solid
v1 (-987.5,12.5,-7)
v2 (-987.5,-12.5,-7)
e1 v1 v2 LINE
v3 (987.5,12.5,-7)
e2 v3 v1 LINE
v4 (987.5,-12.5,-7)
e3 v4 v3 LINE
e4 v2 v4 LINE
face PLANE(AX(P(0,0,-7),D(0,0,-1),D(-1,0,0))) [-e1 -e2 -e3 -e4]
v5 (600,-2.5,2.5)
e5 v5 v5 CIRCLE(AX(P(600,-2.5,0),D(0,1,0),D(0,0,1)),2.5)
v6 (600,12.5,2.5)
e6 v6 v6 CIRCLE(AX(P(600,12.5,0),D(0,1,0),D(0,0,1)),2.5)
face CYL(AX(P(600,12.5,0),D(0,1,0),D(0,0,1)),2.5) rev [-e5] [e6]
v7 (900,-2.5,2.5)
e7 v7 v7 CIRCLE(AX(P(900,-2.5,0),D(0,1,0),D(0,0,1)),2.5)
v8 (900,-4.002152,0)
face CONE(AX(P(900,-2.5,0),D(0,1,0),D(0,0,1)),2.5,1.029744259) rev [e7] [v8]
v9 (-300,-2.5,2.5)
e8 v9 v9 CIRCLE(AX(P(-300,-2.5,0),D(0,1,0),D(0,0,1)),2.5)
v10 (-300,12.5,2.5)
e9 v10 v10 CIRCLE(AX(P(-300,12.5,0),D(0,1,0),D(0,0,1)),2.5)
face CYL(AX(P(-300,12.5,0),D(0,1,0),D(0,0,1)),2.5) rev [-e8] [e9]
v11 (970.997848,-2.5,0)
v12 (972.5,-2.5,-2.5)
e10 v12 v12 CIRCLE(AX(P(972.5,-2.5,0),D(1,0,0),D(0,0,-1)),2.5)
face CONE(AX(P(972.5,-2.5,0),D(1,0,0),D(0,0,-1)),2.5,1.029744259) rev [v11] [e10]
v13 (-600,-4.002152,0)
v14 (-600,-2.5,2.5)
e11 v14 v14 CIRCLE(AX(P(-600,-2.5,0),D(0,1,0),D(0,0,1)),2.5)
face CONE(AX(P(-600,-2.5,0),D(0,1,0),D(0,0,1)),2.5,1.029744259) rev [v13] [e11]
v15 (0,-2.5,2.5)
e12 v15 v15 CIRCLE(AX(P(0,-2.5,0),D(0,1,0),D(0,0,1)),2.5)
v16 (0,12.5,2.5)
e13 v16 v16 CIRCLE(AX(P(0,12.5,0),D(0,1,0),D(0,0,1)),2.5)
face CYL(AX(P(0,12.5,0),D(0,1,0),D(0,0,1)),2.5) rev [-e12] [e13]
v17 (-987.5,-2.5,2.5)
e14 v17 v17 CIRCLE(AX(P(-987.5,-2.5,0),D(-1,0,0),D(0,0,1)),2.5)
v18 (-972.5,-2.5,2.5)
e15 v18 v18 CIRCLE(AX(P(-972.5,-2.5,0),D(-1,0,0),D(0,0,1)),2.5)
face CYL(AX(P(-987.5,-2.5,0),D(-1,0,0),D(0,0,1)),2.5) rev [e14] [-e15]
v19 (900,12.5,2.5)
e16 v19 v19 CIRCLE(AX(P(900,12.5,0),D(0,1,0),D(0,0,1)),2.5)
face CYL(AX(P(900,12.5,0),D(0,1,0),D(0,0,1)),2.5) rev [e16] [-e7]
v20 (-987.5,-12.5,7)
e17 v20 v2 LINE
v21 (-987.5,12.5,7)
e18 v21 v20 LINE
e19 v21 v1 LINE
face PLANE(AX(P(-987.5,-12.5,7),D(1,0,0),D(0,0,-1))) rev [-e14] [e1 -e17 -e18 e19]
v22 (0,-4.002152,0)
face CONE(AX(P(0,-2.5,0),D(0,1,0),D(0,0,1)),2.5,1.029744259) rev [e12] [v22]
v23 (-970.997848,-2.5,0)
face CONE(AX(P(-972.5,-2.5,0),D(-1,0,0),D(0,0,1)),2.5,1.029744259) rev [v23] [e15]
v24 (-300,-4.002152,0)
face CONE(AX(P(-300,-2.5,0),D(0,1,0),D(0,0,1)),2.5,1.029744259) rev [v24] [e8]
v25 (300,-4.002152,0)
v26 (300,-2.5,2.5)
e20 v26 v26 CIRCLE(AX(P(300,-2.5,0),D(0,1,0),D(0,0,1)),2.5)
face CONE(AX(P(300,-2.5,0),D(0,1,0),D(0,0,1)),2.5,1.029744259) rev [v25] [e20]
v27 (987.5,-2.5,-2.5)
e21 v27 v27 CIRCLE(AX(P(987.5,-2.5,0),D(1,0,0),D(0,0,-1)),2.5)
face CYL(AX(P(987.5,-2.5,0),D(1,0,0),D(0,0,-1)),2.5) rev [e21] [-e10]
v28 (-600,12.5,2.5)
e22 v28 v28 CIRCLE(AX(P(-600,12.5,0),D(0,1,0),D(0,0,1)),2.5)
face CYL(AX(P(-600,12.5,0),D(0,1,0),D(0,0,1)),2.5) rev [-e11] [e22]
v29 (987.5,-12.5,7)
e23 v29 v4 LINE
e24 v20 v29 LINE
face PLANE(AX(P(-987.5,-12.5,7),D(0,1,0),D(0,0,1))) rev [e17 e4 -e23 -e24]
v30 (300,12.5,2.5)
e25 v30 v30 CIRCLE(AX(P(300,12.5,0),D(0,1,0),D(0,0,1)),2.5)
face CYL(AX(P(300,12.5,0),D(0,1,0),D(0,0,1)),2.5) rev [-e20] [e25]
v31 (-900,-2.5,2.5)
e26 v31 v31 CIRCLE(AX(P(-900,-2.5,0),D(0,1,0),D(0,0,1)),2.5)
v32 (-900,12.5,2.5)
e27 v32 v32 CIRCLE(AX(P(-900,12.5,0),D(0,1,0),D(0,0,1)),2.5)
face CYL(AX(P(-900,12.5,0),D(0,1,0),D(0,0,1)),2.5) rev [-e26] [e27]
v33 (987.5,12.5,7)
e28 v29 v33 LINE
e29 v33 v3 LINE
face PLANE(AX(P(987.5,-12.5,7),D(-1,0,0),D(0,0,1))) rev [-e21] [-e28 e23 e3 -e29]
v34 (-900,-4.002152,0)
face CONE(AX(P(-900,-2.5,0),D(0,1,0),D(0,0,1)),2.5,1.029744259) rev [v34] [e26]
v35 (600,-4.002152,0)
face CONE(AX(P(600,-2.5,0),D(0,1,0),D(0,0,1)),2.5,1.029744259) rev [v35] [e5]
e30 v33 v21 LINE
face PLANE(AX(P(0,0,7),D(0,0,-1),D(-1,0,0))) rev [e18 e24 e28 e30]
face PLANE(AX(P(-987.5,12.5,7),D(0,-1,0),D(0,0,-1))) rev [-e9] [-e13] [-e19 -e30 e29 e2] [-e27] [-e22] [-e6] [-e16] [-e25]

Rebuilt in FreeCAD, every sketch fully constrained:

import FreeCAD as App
import Part
import Sketcher

V = App.Vector
Q = App.Units.Quantity

doc = App.newDocument("Part")
body = doc.addObject("PartDesign::Body", "Body")

# Sketch on XY plane
sketch1 = doc.addObject("Sketcher::SketchObject", "Sketch")
body.addObject(sketch1)
sketch1.AttachmentSupport = (doc.XY_Plane, [""])
sketch1.MapMode = "FlatFace"
sketch1.addGeometry(Part.LineSegment(V(-988, 12, 0), V(-988, -12, 0)), False)
sketch1.addGeometry(Part.LineSegment(V(-988, -12, 0), V(988, -12, 0)), False)
sketch1.addGeometry(Part.LineSegment(V(988, -12, 0), V(988, 12, 0)), False)
sketch1.addGeometry(Part.LineSegment(V(988, 12, 0), V(-988, 12, 0)), False)
sketch1.addConstraint(Sketcher.Constraint("Coincident", 0, 2, 1, 1))
sketch1.addConstraint(Sketcher.Constraint("Coincident", 1, 2, 2, 1))
sketch1.addConstraint(Sketcher.Constraint("Coincident", 2, 2, 3, 1))
sketch1.addConstraint(Sketcher.Constraint("Coincident", 3, 2, 0, 1))
sketch1.addConstraint(Sketcher.Constraint("Vertical", 0))
sketch1.addConstraint(Sketcher.Constraint("Horizontal", 1))
sketch1.addConstraint(Sketcher.Constraint("Vertical", 2))
sketch1.addConstraint(Sketcher.Constraint("Horizontal", 3))
sketch1.addConstraint(Sketcher.Constraint("Symmetric", 0, 2, 2, 2, -1, 1))
sketch1.addConstraint(Sketcher.Constraint("DistanceX", 1, 1, 1, 2, 1975.0))
sketch1.addConstraint(Sketcher.Constraint("DistanceY", 0, 2, 0, 1, 25.0))
pad1 = doc.addObject("PartDesign::Pad", "Pad")
body.addObject(pad1)
pad1.Profile = sketch1
pad1.Length = 14
pad1.Midplane = True

# Sketch on XZ plane
sketch2 = doc.addObject("Sketcher::SketchObject", "Sketch001")
body.addObject(sketch2)
sketch2.AttachmentSupport = (doc.XZ_Plane, [""])
sketch2.MapMode = "FlatFace"
sketch2.AttachmentOffset = App.Placement(V(0, 0, -12.5), App.Rotation())
sketch2.addGeometry(Part.Circle(V(-900, 0, 0), V(0, 0, 1), 2.5), False)
sketch2.addGeometry(Part.Circle(V(-600, 0, 0), V(0, 0, 1), 2.5), False)
sketch2.addGeometry(Part.Circle(V(-300, 0, 0), V(0, 0, 1), 2.5), False)
sketch2.addGeometry(Part.Circle(V(900, 0, 0), V(0, 0, 1), 2.5), False)
sketch2.addGeometry(Part.Circle(V(600, 0, 0), V(0, 0, 1), 2.5), False)
sketch2.addGeometry(Part.Circle(V(300, 0, 0), V(0, 0, 1), 2.5), False)
sketch2.addGeometry(Part.Circle(V(0, 0, 0), V(0, 0, 1), 2.5), False)
sketch2.addConstraint(Sketcher.Constraint("Coincident", 6, 3, -1, 1))
sketch2.addConstraint(Sketcher.Constraint("Equal", 0, 1))
sketch2.addConstraint(Sketcher.Constraint("Equal", 1, 2))
sketch2.addConstraint(Sketcher.Constraint("Equal", 2, 3))
sketch2.addConstraint(Sketcher.Constraint("Equal", 3, 4))
sketch2.addConstraint(Sketcher.Constraint("Equal", 4, 5))
sketch2.addConstraint(Sketcher.Constraint("Equal", 5, 6))
sketch2.addConstraint(Sketcher.Constraint("Symmetric", 0, 3, 3, 3, -1, 1))
sketch2.addConstraint(Sketcher.Constraint("Symmetric", 1, 3, 4, 3, -1, 1))
sketch2.addConstraint(Sketcher.Constraint("Symmetric", 2, 3, 5, 3, -1, 1))
sketch2.addConstraint(Sketcher.Constraint("PointOnObject", 0, 3, -1))
sketch2.addConstraint(Sketcher.Constraint("PointOnObject", 1, 3, -1))
sketch2.addConstraint(Sketcher.Constraint("PointOnObject", 2, 3, -1))
sketch2.addConstraint(Sketcher.Constraint("Diameter", 0, 5.0))
sketch2.addConstraint(Sketcher.Constraint("DistanceX", 0, 3, -1, 1, 900.0))
sketch2.addConstraint(Sketcher.Constraint("DistanceX", 1, 3, -1, 1, 600.0))
sketch2.addConstraint(Sketcher.Constraint("DistanceX", 2, 3, -1, 1, 300.0))
doc.recompute()
hole = doc.addObject("PartDesign::Hole", "Hole")
body.addObject(hole)
hole.Profile = sketch2
hole.ThreadType = "None"
hole.Diameter = 5
hole.DepthType = "Dimension"
hole.Depth = 15
hole.DrillPoint = "Angled"
hole.DrillPointAngle = 118
hole.Reversed = True

# Sketch on XZ plane
sketch3 = doc.addObject("Sketcher::SketchObject", "Sketch002")
body.addObject(sketch3)
sketch3.AttachmentSupport = (doc.XZ_Plane, [""])
sketch3.MapMode = "FlatFace"
sketch3.AttachmentOffset = App.Placement(V(0, 0, 2.5), App.Rotation())
sketch3.addGeometry(Part.LineSegment(V(971, 0, 0), V(987.5, 0, 0)), False)
sketch3.addGeometry(Part.LineSegment(V(987.5, 0, 0), V(987.5, -2.5, 0)), False)
sketch3.addGeometry(Part.LineSegment(V(987.5, -2.5, 0), V(972.5, -2.5, 0)), False)
sketch3.addGeometry(Part.LineSegment(V(972.5, -2.5, 0), V(971, 0, 0)), False)
sketch3.addConstraint(Sketcher.Constraint("Coincident", 0, 2, 1, 1))
sketch3.addConstraint(Sketcher.Constraint("Coincident", 1, 2, 2, 1))
sketch3.addConstraint(Sketcher.Constraint("Coincident", 2, 2, 3, 1))
sketch3.addConstraint(Sketcher.Constraint("Coincident", 3, 2, 0, 1))
sketch3.addConstraint(Sketcher.Constraint("Horizontal", 0))
sketch3.addConstraint(Sketcher.Constraint("Vertical", 1))
sketch3.addConstraint(Sketcher.Constraint("Horizontal", 2))
sketch3.addConstraint(Sketcher.Constraint("PointOnObject", 0, 2, -1))
sketch3.addConstraint(Sketcher.Constraint("DistanceX", 2, 2, 2, 1, 15.0))
sketch3.addConstraint(Sketcher.Constraint("Angle", 3, Q("121 deg")))
sketch3.addConstraint(Sketcher.Constraint("DistanceY", 1, 2, 1, 1, 2.5))
sketch3.addConstraint(Sketcher.Constraint("DistanceX", -1, 1, 0, 2, 987.5))
groove = doc.addObject("PartDesign::Groove", "Groove")
body.addObject(groove)
groove.Profile = sketch3
groove.ReferenceAxis = (sketch3, ["H_Axis"])
groove.Angle = 360
doc.recompute()

mirrored = doc.addObject("PartDesign::Mirrored", "Mirrored")
body.addObject(mirrored)
mirrored.Originals = [groove]
mirrored.MirrorPlane = (doc.YZ_Plane, [""])
body.Tip = mirrored

# Sketch on XZ plane
sketch4 = doc.addObject("Sketcher::SketchObject", "Sketch003")
body.addObject(sketch4)
sketch4.AttachmentSupport = (doc.XZ_Plane, [""])
sketch4.MapMode = "FlatFace"
sketch4.AttachmentOffset = App.Placement(V(0, 0, 2.5), App.Rotation())
sketch4.addGeometry(Part.LineSegment(V(971, 0, 0), V(987.5, 0, 0)), False)
sketch4.addGeometry(Part.LineSegment(V(987.5, 0, 0), V(987.5, -2.5, 0)), False)
sketch4.addGeometry(Part.LineSegment(V(987.5, -2.5, 0), V(972.5, -2.5, 0)), False)
sketch4.addGeometry(Part.LineSegment(V(972.5, -2.5, 0), V(971, 0, 0)), False)
sketch4.addConstraint(Sketcher.Constraint("Coincident", 0, 2, 1, 1))
sketch4.addConstraint(Sketcher.Constraint("Coincident", 1, 2, 2, 1))
sketch4.addConstraint(Sketcher.Constraint("Coincident", 2, 2, 3, 1))
sketch4.addConstraint(Sketcher.Constraint("Coincident", 3, 2, 0, 1))
sketch4.addConstraint(Sketcher.Constraint("Horizontal", 0))
sketch4.addConstraint(Sketcher.Constraint("Vertical", 1))
sketch4.addConstraint(Sketcher.Constraint("Horizontal", 2))
sketch4.addConstraint(Sketcher.Constraint("PointOnObject", 0, 2, -1))
sketch4.addConstraint(Sketcher.Constraint("DistanceX", 2, 2, 2, 1, 15.0))
sketch4.addConstraint(Sketcher.Constraint("Angle", 3, Q("121 deg")))
sketch4.addConstraint(Sketcher.Constraint("DistanceY", 1, 2, 1, 1, 2.5))
sketch4.addConstraint(Sketcher.Constraint("DistanceX", -1, 1, 0, 2, 987.5))
groove2 = doc.addObject("PartDesign::Groove", "Groove001")
body.addObject(groove2)
groove2.Profile = sketch4
groove2.ReferenceAxis = (sketch4, ["H_Axis"])
groove2.Angle = 360

# Sketch on XZ plane
sketch5 = doc.addObject("Sketcher::SketchObject", "Sketch004")
body.addObject(sketch5)
sketch5.AttachmentSupport = (doc.XZ_Plane, [""])
sketch5.MapMode = "FlatFace"
sketch5.AttachmentOffset = App.Placement(V(0, 0, 2.5), App.Rotation())
sketch5.addGeometry(Part.LineSegment(V(-987.5, 0, 0), V(-971, 0, 0)), False)
sketch5.addGeometry(Part.LineSegment(V(-971, 0, 0), V(-972.5, -2.5, 0)), False)
sketch5.addGeometry(Part.LineSegment(V(-972.5, -2.5, 0), V(-987.5, -2.5, 0)), False)
sketch5.addGeometry(Part.LineSegment(V(-987.5, -2.5, 0), V(-987.5, 0, 0)), False)
sketch5.addConstraint(Sketcher.Constraint("Coincident", 0, 2, 1, 1))
sketch5.addConstraint(Sketcher.Constraint("Coincident", 1, 2, 2, 1))
sketch5.addConstraint(Sketcher.Constraint("Coincident", 2, 2, 3, 1))
sketch5.addConstraint(Sketcher.Constraint("Coincident", 3, 2, 0, 1))
sketch5.addConstraint(Sketcher.Constraint("Horizontal", 0))
sketch5.addConstraint(Sketcher.Constraint("Horizontal", 2))
sketch5.addConstraint(Sketcher.Constraint("Vertical", 3))
sketch5.addConstraint(Sketcher.Constraint("PointOnObject", 0, 2, -1))
sketch5.addConstraint(Sketcher.Constraint("DistanceX", 2, 2, 2, 1, 15.0))
sketch5.addConstraint(Sketcher.Constraint("Angle", 1, Q("-121 deg")))
sketch5.addConstraint(Sketcher.Constraint("DistanceY", 3, 1, 3, 2, 2.5))
sketch5.addConstraint(Sketcher.Constraint("DistanceX", 1, 2, -1, 1, 972.5))
groove3 = doc.addObject("PartDesign::Groove", "Groove002")
body.addObject(groove3)
groove3.Profile = sketch5
groove3.ReferenceAxis = (sketch5, ["H_Axis"])
groove3.Angle = 360

doc.recompute()
